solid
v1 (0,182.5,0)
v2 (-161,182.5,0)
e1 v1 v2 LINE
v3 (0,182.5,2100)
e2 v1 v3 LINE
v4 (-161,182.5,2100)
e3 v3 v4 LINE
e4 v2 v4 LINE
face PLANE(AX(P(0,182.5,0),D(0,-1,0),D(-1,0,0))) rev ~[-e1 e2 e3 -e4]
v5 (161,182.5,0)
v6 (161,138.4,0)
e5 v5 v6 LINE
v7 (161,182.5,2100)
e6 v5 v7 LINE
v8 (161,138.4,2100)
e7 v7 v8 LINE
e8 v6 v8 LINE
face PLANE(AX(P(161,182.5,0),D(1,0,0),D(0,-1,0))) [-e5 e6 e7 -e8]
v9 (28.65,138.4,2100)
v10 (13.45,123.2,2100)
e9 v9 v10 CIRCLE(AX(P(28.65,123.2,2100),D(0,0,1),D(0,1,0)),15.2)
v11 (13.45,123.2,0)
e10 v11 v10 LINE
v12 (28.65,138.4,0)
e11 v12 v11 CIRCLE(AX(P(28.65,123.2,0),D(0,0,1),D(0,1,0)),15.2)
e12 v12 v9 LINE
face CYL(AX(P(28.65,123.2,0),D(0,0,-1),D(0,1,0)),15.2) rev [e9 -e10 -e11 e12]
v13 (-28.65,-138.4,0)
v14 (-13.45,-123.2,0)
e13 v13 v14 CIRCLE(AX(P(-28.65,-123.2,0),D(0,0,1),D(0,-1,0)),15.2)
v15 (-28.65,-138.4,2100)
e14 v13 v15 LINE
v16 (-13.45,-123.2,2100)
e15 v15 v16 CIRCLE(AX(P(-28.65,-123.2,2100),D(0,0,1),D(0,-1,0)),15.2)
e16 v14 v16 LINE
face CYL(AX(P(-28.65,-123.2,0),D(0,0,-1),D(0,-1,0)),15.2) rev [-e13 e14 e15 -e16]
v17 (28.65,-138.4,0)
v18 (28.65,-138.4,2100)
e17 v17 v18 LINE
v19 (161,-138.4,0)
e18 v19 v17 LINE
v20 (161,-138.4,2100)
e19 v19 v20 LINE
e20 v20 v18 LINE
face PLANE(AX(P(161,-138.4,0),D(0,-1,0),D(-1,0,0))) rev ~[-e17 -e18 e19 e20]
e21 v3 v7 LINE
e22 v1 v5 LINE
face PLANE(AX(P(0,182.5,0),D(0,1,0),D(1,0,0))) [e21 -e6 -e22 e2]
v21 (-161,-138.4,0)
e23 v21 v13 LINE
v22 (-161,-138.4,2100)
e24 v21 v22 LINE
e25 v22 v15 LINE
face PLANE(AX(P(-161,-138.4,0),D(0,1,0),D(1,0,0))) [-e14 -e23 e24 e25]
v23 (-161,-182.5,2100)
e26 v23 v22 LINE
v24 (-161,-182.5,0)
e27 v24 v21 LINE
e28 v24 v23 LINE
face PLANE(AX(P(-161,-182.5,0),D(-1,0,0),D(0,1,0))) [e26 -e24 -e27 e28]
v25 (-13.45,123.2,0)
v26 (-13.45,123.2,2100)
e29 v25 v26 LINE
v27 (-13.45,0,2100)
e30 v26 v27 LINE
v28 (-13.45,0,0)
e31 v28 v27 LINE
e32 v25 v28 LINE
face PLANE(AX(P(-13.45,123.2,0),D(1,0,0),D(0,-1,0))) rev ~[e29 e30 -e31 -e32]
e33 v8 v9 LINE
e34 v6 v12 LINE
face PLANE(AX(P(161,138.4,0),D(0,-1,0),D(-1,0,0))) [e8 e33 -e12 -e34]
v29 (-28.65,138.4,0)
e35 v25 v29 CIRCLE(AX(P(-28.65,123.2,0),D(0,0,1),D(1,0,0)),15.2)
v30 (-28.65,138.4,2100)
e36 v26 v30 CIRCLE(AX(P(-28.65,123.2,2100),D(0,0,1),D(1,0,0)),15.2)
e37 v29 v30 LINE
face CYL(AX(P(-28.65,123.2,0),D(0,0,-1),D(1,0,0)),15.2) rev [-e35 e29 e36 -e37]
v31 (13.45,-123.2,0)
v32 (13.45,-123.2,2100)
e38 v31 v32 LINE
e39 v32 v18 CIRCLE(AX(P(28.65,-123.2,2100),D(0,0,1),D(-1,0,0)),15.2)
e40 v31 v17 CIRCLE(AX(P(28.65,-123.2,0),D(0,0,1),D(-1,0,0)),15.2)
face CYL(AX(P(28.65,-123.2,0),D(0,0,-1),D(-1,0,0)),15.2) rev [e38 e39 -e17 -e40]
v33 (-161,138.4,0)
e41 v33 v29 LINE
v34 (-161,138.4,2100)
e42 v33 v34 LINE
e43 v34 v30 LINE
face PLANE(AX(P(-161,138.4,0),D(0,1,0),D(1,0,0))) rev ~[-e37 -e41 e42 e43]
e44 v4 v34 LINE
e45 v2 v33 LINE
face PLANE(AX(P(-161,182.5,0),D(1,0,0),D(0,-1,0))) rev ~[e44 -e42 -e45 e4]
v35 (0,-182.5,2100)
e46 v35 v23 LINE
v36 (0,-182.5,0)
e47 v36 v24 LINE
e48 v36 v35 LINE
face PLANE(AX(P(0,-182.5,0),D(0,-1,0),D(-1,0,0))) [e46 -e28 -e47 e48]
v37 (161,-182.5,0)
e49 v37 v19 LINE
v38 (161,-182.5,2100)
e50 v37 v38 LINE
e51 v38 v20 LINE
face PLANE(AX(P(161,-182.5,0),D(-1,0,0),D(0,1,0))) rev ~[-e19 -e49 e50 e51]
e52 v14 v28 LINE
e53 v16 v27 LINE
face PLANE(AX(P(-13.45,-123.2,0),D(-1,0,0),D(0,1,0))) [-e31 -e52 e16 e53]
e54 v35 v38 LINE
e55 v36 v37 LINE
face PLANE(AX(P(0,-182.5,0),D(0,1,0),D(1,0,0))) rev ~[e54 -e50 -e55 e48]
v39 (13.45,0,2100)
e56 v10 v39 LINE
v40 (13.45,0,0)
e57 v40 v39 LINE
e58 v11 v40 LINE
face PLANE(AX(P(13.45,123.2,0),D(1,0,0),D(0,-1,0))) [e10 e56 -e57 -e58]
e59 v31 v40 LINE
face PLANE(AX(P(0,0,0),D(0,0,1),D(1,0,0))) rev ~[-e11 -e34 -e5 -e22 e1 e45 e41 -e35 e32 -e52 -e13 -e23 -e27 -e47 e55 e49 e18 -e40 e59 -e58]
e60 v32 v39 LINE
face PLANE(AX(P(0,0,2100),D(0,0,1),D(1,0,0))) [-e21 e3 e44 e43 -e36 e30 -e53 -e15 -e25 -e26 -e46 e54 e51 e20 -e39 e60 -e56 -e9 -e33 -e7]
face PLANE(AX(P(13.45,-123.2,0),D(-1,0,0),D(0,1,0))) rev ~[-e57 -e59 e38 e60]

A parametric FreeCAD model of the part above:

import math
import FreeCAD as App
import Part
import Sketcher

V = App.Vector

doc = App.newDocument("Part")
body = doc.addObject("PartDesign::Body", "Body")

sketch1 = body.newObject("Sketcher::SketchObject", "Sketch")
sketch1.AttachmentSupport = (doc.getObject("XY_Plane"), [""])
sketch1.MapMode = "FlatFace"
sketch1.addGeometry([
    Part.LineSegment(V(-161, -138, 0), V(-161, -182, 0)),
    Part.LineSegment(V(-161, -182, 0), V(161, -182, 0)),
    Part.LineSegment(V(161, -182, 0), V(161, -138, 0)),
    Part.LineSegment(V(161, -138, 0), V(29, -138, 0)),
    Part.ArcOfCircle(Part.Circle(V(29, -123, 0), V(0, 0, 1), 15), math.radians(180), math.radians(270)),
    Part.LineSegment(V(13, -123, 0), V(13, 123, 0)),
    Part.ArcOfCircle(Part.Circle(V(29, 123, 0), V(0, 0, 1), 15), math.radians(90), math.radians(180)),
    Part.LineSegment(V(29, 138, 0), V(161, 138, 0)),
    Part.LineSegment(V(161, 138, 0), V(161, 182, 0)),
    Part.LineSegment(V(161, 182, 0), V(-161, 182, 0)),
    Part.LineSegment(V(-161, 182, 0), V(-161, 138, 0)),
    Part.LineSegment(V(-161, 138, 0), V(-29, 138, 0)),
    Part.ArcOfCircle(Part.Circle(V(-29, 123, 0), V(0, 0, 1), 15), math.radians(0), math.radians(90)),
    Part.LineSegment(V(-13, 123, 0), V(-13, -123, 0)),
    Part.ArcOfCircle(Part.Circle(V(-29, -123, 0), V(0, 0, 1), 15), math.radians(-90), math.radians(0)),
    Part.LineSegment(V(-29, -138, 0), V(-161, -138, 0)),
], False)
sketch1.addConstraint([
    Sketcher.Constraint("Coincident", 0, 2, 1, 1),
    Sketcher.Constraint("Coincident", 1, 2, 2, 1),
    Sketcher.Constraint("Coincident", 2, 2, 3, 1),
    Sketcher.Constraint("Tangent", 3, 2, 4, 2),
    Sketcher.Constraint("Tangent", 4, 1, 5, 1),
    Sketcher.Constraint("Tangent", 5, 2, 6, 2),
    Sketcher.Constraint("Tangent", 6, 1, 7, 1),
    Sketcher.Constraint("Coincident", 7, 2, 8, 1),
    Sketcher.Constraint("Coincident", 8, 2, 9, 1),
    Sketcher.Constraint("Coincident", 9, 2, 10, 1),
    Sketcher.Constraint("Coincident", 10, 2, 11, 1),
    Sketcher.Constraint("Tangent", 11, 2, 12, 2),
    Sketcher.Constraint("Tangent", 12, 1, 13, 1),
    Sketcher.Constraint("Tangent", 13, 2, 14, 2),
    Sketcher.Constraint("Tangent", 14, 1, 15, 1),
    Sketcher.Constraint("Coincident", 15, 2, 0, 1),
    Sketcher.Constraint("Vertical", 0),
    Sketcher.Constraint("Horizontal", 1),
    Sketcher.Constraint("Vertical", 2),
    Sketcher.Constraint("Horizontal", 3),
    Sketcher.Constraint("Vertical", 5),
    Sketcher.Constraint("Horizontal", 7),
    Sketcher.Constraint("Vertical", 8),
    Sketcher.Constraint("Horizontal", 9),
    Sketcher.Constraint("Vertical", 10),
    Sketcher.Constraint("Horizontal", 11),
    Sketcher.Constraint("Vertical", 13),
    Sketcher.Constraint("Horizontal", 15),
    Sketcher.Constraint("Equal", 4, 6),
    Sketcher.Constraint("Equal", 6, 12),
    Sketcher.Constraint("Equal", 12, 14),
    Sketcher.Constraint("Symmetric", 4, 3, 12, 3, -1, 1),
    Sketcher.Constraint("Symmetric", 0, 2, 8, 2, -1, 1),
    Sketcher.Constraint("Symmetric", 7, 2, 10, 2, -2),
    Sketcher.Constraint("Symmetric", 2, 2, 15, 2, -2),
    Sketcher.Constraint("Radius", 4, 15.2),
    Sketcher.Constraint("DistanceY", 0, 2, 0, 1, 44.1),
    Sketcher.Constraint("DistanceX", 0, 2, -1, 1, 161.0),
    Sketcher.Constraint("DistanceY", 0, 2, -1, 1, 182.5),
    Sketcher.Constraint("DistanceX", -1, 1, 4, 1, 13.45),
])
pad1 = body.newObject("PartDesign::Pad", "Pad")
pad1.Profile = sketch1
pad1.Length = 2100

doc.recompute()
